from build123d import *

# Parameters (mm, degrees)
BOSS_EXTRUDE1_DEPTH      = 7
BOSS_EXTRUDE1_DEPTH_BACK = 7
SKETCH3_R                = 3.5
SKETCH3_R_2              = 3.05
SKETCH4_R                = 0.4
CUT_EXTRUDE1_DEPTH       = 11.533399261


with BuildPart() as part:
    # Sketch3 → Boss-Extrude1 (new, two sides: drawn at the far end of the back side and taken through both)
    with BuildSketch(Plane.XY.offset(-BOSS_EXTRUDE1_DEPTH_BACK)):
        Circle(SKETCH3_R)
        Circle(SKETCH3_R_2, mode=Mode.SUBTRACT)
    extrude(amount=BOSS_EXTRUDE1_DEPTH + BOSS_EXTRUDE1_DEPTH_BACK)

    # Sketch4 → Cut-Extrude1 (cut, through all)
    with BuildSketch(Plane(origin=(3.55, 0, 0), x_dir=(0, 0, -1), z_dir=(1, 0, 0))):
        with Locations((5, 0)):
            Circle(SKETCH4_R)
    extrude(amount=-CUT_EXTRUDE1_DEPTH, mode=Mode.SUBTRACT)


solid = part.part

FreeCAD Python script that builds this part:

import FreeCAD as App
import Part
import Sketcher
from FreeCAD import Vector

doc = App.newDocument("Part")
body = doc.addObject("PartDesign::Body", "Body")

sketch1 = body.newObject("Sketcher::SketchObject", "Sketch")
sketch1.AttachmentSupport = (doc.getObject("XY_Plane"), [""])
sketch1.MapMode = "FlatFace"
sketch1.addGeometry([
    Part.Circle(Vector(0, 0, 0), Vector(0, 0, 1), 3.5),
    Part.Circle(Vector(0, 0, 0), Vector(0, 0, 1), 3),
], False)
sketch1.addConstraint([
    Sketcher.Constraint("Coincident", 0, 3, -1, 1),
    Sketcher.Constraint("Coincident", 1, 3, -1, 1),
    Sketcher.Constraint("Diameter", 0, 7.0),
    Sketcher.Constraint("Diameter", 1, 6.1),
])
pad1 = body.newObject("PartDesign::Pad", "Pad")
pad1.Profile = sketch1
pad1.Type = "TwoLengths"
pad1.Length = 7
pad1.Length2 = 7

sketch2 = body.newObject("Sketcher::SketchObject", "Sketch001")
sketch2.AttachmentSupport = (doc.getObject("YZ_Plane"), [""])
sketch2.MapMode = "FlatFace"
sketch2.AttachmentOffset = App.Placement(Vector(0, 0, 3.55), App.Rotation())
sketch2.addGeometry(Part.Circle(Vector(0, -5, 0), Vector(0, 0, 1), 0.4), False)
sketch2.addConstraint([
    Sketcher.Constraint("PointOnObject", 0, 3, -2),
    Sketcher.Constraint("Diameter", 0, 0.8),
    Sketcher.Constraint("DistanceY", 0, 3, -1, 1, 5.0),
])
pocket1 = body.newObject("PartDesign::Pocket", "Pocket")
pocket1.Profile = sketch2
pocket1.Type = "ThroughAll"

doc.recompute()
